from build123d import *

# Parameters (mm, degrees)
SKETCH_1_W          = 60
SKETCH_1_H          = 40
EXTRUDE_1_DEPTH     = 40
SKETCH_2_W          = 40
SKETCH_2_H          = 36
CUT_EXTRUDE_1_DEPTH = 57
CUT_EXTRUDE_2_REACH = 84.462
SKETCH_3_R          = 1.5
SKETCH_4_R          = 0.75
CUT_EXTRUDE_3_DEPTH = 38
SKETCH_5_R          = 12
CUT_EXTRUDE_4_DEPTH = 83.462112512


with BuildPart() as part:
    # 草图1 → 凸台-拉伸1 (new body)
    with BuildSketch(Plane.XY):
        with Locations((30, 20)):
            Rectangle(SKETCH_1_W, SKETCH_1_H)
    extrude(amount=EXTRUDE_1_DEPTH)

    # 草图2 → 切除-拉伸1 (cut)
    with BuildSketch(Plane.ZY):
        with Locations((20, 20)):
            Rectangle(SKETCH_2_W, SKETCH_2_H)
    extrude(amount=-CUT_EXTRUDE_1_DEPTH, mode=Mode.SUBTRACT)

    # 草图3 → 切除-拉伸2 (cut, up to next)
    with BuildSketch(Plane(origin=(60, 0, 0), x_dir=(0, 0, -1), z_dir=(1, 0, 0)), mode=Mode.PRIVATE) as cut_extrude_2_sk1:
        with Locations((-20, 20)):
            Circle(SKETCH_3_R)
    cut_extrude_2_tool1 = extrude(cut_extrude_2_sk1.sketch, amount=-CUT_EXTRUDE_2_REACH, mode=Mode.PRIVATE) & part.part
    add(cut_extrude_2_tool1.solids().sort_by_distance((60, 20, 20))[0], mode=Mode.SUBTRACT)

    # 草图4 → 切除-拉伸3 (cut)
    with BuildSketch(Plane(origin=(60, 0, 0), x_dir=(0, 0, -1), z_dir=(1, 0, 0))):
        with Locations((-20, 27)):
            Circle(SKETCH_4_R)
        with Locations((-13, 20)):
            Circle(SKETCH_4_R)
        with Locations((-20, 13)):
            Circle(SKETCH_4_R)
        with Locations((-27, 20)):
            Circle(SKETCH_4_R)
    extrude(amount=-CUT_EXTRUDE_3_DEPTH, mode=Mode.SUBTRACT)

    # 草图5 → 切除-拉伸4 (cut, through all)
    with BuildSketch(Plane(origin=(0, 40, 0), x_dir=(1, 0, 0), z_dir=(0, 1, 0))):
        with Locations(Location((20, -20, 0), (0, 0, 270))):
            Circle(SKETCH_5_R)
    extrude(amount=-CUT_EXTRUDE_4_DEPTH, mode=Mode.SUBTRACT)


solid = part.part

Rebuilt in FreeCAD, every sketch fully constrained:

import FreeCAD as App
import Part
import Sketcher
Q = App.Units.Quantity

doc = App.newDocument("Part")
body = doc.addObject("PartDesign::Body", "Body")

sketch1 = body.newObject("Sketcher::SketchObject", "Sketch")
sketch1.AttachmentSupport = (doc.getObject("XY_Plane"), [""])
sketch1.MapMode = "FlatFace"
sketch1.addGeometry(Part.LineSegment(App.Vector(0, 40, 0), App.Vector(0, 0, 0)), False)
sketch1.addGeometry(Part.LineSegment(App.Vector(0, 0, 0), App.Vector(60, 0, 0)), False)
sketch1.addGeometry(Part.LineSegment(App.Vector(60, 0, 0), App.Vector(60, 40, 0)), False)
sketch1.addGeometry(Part.LineSegment(App.Vector(60, 40, 0), App.Vector(0, 40, 0)), False)
sketch1.addConstraint(Sketcher.Constraint("Coincident", 0, 2, 1, 1))
sketch1.addConstraint(Sketcher.Constraint("Coincident", 1, 2, 2, 1))
sketch1.addConstraint(Sketcher.Constraint("Coincident", 2, 2, 3, 1))
sketch1.addConstraint(Sketcher.Constraint("Coincident", 3, 2, 0, 1))
sketch1.addConstraint(Sketcher.Constraint("Vertical", 0))
sketch1.addConstraint(Sketcher.Constraint("Horizontal", 1))
sketch1.addConstraint(Sketcher.Constraint("Vertical", 2))
sketch1.addConstraint(Sketcher.Constraint("Horizontal", 3))
sketch1.addConstraint(Sketcher.Constraint("Coincident", 0, 2, -1, 1))
sketch1.addConstraint(Sketcher.Constraint("DistanceX", 1, 1, 1, 2, Q("60 mm")))
sketch1.addConstraint(Sketcher.Constraint("DistanceY", 0, 2, 0, 1, Q("40 mm")))
pad1 = body.newObject("PartDesign::Pad", "Pad")
pad1.Profile = sketch1
pad1.Length = 40

sketch2 = body.newObject("Sketcher::SketchObject", "Sketch001")
sketch2.AttachmentSupport = (doc.getObject("YZ_Plane"), [""])
sketch2.MapMode = "FlatFace"
sketch2.addGeometry(Part.LineSegment(App.Vector(38, 0, 0), App.Vector(2, 0, 0)), False)
sketch2.addGeometry(Part.LineSegment(App.Vector(2, 0, 0), App.Vector(2, 40, 0)), False)
sketch2.addGeometry(Part.LineSegment(App.Vector(2, 40, 0), App.Vector(38, 40, 0)), False)
sketch2.addGeometry(Part.LineSegment(App.Vector(38, 40, 0), App.Vector(38, 0, 0)), False)
sketch2.addConstraint(Sketcher.Constraint("Coincident", 0, 2, 1, 1))
sketch2.addConstraint(Sketcher.Constraint("Coincident", 1, 2, 2, 1))
sketch2.addConstraint(Sketcher.Constraint("Coincident", 2, 2, 3, 1))
sketch2.addConstraint(Sketcher.Constraint("Coincident", 3, 2, 0, 1))
sketch2.addConstraint(Sketcher.Constraint("Horizontal", 0))
sketch2.addConstraint(Sketcher.Constraint("Vertical", 1))
sketch2.addConstraint(Sketcher.Constraint("Horizontal", 2))
sketch2.addConstraint(Sketcher.Constraint("Vertical", 3))
sketch2.addConstraint(Sketcher.Constraint("PointOnObject", 0, 2, -1))
sketch2.addConstraint(Sketcher.Constraint("DistanceX", 0, 2, 0, 1, Q("36 mm")))
sketch2.addConstraint(Sketcher.Constraint("DistanceY", 1, 1, 1, 2, Q("40 mm")))
sketch2.addConstraint(Sketcher.Constraint("DistanceX", -1, 1, 0, 2, Q("2 mm")))
pocket1 = body.newObject("PartDesign::Pocket", "Pocket")
pocket1.Profile = sketch2
pocket1.Length = 57
pocket1.Reversed = True

sketch3 = body.newObject("Sketcher::SketchObject", "Sketch002")
sketch3.AttachmentSupport = (doc.getObject("YZ_Plane"), [""])
sketch3.MapMode = "FlatFace"
sketch3.AttachmentOffset = App.Placement(App.Vector(0, 0, 60), App.Rotation())
sketch3.addGeometry(Part.Circle(App.Vector(20, 20, 0), App.Vector(0, 0, 1), 1.5), False)
sketch3.addConstraint(Sketcher.Constraint("Diameter", 0, Q("3 mm")))
sketch3.addConstraint(Sketcher.Constraint("DistanceX", -1, 1, 0, 3, Q("20 mm")))
sketch3.addConstraint(Sketcher.Constraint("DistanceY", -1, 1, 0, 3, Q("20 mm")))
pocket2 = body.newObject("PartDesign::Pocket", "Pocket001")
pocket2.Profile = sketch3
pocket2.Type = "UpToFirst"

sketch4 = body.newObject("Sketcher::SketchObject", "Sketch003")
sketch4.AttachmentSupport = (doc.getObject("YZ_Plane"), [""])
sketch4.MapMode = "FlatFace"
sketch4.AttachmentOffset = App.Placement(App.Vector(0, 0, 60), App.Rotation())
sketch4.addGeometry(Part.Circle(App.Vector(27, 20, 0), App.Vector(0, 0, 1), 0.8), False)
sketch4.addGeometry(Part.Circle(App.Vector(20, 13, 0), App.Vector(0, 0, 1), 0.8), False)
sketch4.addGeometry(Part.Circle(App.Vector(13, 20, 0), App.Vector(0, 0, 1), 0.8), False)
sketch4.addGeometry(Part.Circle(App.Vector(20, 27, 0), App.Vector(0, 0, 1), 0.8), False)
sketch4.addConstraint(Sketcher.Constraint("Equal", 0, 1))
sketch4.addConstraint(Sketcher.Constraint("Equal", 1, 2))
sketch4.addConstraint(Sketcher.Constraint("Equal", 2, 3))
sketch4.addConstraint(Sketcher.Constraint("Horizontal", 0, 3, 2, 3))
sketch4.addConstraint(Sketcher.Constraint("Vertical", 1, 3, 3, 3))
sketch4.addConstraint(Sketcher.Constraint("Diameter", 0, Q("1.5 mm")))
sketch4.addConstraint(Sketcher.Constraint("DistanceX", -1, 1, 0, 3, Q("27 mm")))
sketch4.addConstraint(Sketcher.Constraint("DistanceY", -1, 1, 0, 3, Q("20 mm")))
sketch4.addConstraint(Sketcher.Constraint("DistanceX", -1, 1, 1, 3, Q("20 mm")))
sketch4.addConstraint(Sketcher.Constraint("DistanceY", -1, 1, 1, 3, Q("13 mm")))
sketch4.addConstraint(Sketcher.Constraint("DistanceX", -1, 1, 2, 3, Q("13 mm")))
sketch4.addConstraint(Sketcher.Constraint("DistanceY", -1, 1, 3, 3, Q("27 mm")))
pocket3 = body.newObject("PartDesign::Pocket", "Pocket002")
pocket3.Profile = sketch4
pocket3.Length = 38

sketch5 = body.newObject("Sketcher::SketchObject", "Sketch004")
sketch5.AttachmentSupport = (doc.getObject("XZ_Plane"), [""])
sketch5.MapMode = "FlatFace"
sketch5.AttachmentOffset = App.Placement(App.Vector(0, 0, -40), App.Rotation())
sketch5.addGeometry(Part.Circle(App.Vector(20, 20, 0), App.Vector(0, 0, 1), 12), False)
sketch5.addConstraint(Sketcher.Constraint("Diameter", 0, Q("24 mm")))
sketch5.addConstraint(Sketcher.Constraint("DistanceX", -1, 1, 0, 3, Q("20 mm")))
sketch5.addConstraint(Sketcher.Constraint("DistanceY", -1, 1, 0, 3, Q("20 mm")))
pocket4 = body.newObject("PartDesign::Pocket", "Pocket003")
pocket4.Profile = sketch5
pocket4.Type = "ThroughAll"
pocket4.Reversed = True

doc.recompute()
